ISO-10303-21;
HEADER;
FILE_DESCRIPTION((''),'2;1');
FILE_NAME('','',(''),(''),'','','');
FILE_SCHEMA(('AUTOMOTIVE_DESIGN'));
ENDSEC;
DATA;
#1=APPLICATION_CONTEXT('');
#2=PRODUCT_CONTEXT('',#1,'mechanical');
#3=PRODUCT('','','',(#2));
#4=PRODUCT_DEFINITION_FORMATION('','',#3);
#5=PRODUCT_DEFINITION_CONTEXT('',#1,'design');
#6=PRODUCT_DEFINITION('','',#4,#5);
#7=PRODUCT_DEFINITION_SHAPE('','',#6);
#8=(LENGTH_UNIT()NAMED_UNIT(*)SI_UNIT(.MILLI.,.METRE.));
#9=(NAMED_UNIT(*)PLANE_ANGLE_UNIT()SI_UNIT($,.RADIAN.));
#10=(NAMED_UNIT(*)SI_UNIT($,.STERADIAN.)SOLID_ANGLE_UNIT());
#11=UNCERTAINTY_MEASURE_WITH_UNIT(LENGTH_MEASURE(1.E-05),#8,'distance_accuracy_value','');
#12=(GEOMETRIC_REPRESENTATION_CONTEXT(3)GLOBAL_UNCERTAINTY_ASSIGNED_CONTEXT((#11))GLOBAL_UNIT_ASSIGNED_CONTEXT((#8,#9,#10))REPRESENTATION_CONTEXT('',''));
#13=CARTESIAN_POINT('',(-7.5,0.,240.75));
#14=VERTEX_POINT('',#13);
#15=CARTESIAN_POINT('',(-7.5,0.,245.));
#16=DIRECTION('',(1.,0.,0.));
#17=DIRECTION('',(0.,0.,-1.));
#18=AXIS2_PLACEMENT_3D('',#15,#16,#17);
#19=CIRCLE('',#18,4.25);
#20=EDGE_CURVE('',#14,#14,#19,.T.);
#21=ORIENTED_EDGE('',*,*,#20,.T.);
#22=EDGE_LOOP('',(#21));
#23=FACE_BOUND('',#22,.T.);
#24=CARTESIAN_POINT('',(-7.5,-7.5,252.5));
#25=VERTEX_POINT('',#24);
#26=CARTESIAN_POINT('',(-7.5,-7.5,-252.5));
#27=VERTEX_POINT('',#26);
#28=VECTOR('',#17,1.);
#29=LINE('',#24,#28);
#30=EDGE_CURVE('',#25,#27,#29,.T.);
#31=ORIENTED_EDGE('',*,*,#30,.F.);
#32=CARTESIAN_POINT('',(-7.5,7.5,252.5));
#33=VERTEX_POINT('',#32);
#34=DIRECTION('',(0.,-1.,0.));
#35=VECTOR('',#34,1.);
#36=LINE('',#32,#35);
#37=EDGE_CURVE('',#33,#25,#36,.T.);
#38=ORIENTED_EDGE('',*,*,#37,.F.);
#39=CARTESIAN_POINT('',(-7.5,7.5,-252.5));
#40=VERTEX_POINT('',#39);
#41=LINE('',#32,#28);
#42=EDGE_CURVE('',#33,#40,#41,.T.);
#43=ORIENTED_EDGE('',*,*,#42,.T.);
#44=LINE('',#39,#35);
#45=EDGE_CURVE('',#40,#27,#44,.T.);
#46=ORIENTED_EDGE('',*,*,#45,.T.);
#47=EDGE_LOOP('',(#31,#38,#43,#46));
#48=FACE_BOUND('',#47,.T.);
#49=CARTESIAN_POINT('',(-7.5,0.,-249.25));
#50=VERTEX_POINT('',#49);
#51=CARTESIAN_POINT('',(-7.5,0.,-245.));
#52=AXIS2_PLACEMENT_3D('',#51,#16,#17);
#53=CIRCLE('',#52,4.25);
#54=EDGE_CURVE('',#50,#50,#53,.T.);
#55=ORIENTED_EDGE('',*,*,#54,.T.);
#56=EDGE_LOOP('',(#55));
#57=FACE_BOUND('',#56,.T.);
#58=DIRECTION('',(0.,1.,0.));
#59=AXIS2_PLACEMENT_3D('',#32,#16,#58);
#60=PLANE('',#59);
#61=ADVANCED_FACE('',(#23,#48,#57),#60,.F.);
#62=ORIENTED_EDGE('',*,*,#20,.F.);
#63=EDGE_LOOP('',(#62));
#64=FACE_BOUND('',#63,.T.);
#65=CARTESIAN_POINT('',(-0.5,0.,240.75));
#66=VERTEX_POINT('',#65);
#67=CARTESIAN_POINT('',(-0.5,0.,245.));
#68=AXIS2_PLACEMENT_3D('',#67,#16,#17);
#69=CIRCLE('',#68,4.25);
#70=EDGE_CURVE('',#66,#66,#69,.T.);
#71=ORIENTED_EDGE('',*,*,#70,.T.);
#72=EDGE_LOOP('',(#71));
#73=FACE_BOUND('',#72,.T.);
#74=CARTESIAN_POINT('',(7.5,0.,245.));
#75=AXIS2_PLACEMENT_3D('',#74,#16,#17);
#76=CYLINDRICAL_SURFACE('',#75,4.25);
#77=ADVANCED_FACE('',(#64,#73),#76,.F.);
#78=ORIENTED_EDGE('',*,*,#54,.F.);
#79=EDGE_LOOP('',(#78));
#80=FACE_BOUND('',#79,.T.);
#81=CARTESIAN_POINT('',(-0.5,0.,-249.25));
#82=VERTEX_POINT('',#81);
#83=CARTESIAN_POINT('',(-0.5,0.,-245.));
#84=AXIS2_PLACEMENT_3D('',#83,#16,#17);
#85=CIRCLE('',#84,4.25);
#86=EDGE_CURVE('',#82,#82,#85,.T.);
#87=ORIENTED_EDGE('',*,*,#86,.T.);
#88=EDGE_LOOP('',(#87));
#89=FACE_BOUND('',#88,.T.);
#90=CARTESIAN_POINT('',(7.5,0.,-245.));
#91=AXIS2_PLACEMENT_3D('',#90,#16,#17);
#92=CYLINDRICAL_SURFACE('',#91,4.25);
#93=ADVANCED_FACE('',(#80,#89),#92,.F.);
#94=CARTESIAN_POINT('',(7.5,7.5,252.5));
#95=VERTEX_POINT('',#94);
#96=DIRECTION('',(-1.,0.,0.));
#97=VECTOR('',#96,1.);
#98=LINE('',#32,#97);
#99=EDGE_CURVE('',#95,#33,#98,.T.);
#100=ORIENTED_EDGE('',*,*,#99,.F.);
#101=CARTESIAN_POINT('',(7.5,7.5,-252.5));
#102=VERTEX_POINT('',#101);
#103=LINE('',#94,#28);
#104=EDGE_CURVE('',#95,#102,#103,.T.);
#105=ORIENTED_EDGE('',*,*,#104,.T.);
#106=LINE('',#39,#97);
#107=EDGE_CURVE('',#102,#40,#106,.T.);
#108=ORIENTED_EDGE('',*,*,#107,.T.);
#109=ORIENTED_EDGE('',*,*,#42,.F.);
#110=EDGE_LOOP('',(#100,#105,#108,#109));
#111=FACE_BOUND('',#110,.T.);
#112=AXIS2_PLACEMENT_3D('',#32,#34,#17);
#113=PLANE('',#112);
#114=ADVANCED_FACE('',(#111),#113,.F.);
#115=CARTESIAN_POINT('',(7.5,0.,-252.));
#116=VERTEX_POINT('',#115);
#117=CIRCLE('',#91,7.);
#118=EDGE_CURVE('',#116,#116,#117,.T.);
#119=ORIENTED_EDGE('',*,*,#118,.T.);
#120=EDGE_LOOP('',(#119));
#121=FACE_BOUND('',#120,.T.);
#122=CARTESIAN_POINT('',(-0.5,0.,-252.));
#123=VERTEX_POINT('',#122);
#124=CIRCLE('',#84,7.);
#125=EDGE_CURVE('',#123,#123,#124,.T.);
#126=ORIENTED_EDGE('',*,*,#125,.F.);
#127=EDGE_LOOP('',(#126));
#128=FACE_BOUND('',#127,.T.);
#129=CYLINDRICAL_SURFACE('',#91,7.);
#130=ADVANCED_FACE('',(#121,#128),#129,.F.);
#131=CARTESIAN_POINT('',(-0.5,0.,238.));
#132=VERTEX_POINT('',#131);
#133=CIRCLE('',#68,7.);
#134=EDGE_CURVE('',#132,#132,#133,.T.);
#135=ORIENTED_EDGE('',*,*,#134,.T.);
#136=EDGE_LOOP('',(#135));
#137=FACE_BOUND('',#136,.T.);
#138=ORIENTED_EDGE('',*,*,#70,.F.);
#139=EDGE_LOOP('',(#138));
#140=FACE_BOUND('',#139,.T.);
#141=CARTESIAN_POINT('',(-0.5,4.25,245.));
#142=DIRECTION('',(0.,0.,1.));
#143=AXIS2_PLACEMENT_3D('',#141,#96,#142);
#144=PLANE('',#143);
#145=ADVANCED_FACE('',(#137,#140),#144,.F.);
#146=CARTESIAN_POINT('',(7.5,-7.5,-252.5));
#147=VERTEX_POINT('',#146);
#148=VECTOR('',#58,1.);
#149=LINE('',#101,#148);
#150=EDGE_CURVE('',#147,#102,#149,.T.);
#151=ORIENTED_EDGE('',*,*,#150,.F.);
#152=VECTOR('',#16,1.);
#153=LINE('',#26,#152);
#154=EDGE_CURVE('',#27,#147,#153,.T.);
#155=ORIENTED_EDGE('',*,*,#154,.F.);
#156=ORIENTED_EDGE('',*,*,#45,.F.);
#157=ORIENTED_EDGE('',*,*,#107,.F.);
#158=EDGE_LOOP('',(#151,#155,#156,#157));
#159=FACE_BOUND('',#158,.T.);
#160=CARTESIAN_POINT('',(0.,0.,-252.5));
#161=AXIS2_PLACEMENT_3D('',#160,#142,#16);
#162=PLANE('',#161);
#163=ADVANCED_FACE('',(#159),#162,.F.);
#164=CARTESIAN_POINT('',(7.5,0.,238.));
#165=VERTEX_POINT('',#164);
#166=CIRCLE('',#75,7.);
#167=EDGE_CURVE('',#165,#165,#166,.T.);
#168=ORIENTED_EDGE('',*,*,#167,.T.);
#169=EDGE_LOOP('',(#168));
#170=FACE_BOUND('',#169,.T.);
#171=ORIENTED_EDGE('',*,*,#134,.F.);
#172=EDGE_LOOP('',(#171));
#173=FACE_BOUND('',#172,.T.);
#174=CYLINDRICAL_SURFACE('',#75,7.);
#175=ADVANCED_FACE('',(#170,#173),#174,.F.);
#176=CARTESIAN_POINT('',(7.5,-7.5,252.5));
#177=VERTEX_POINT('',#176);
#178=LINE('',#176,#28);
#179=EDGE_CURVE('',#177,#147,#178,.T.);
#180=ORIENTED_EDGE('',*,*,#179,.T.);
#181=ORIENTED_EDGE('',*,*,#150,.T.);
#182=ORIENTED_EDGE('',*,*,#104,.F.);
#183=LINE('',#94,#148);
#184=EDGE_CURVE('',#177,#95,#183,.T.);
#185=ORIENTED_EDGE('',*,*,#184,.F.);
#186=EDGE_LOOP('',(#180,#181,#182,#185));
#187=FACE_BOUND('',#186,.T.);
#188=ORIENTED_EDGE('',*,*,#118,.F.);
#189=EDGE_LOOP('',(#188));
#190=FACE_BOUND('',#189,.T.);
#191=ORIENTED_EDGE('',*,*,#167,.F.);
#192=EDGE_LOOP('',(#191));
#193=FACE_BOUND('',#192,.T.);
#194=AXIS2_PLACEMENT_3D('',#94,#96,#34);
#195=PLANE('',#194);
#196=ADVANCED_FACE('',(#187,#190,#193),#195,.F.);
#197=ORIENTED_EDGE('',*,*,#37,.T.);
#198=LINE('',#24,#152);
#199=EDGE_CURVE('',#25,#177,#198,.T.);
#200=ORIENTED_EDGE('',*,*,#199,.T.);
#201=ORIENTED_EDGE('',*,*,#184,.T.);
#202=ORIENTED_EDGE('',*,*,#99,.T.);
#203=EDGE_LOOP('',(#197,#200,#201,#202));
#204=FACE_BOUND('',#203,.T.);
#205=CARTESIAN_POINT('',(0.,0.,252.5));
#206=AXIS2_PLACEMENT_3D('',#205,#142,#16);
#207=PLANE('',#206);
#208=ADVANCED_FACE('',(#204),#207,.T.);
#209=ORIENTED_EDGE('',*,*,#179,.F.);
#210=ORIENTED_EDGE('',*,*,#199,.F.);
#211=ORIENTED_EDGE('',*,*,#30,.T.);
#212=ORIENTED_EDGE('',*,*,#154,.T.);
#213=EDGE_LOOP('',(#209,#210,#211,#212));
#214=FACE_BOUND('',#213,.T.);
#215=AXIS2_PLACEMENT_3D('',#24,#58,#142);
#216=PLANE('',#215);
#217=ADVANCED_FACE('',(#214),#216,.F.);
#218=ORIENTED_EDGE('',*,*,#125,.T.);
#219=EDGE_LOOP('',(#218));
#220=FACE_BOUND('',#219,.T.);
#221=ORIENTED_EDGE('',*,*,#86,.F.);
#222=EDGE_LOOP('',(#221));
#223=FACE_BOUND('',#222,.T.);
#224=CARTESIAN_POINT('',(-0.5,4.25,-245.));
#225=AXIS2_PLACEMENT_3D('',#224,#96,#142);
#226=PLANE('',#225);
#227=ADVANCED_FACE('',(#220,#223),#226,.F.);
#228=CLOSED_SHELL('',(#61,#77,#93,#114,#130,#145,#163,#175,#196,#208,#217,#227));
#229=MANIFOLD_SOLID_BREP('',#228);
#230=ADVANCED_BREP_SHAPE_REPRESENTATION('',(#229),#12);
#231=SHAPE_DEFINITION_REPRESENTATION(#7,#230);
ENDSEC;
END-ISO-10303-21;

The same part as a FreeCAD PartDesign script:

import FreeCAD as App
import Part
import Sketcher
from FreeCAD import Vector


def add_polygon(sketch, points):
    """Adds a closed chain of lines whose ends are joined by coincident constraints."""
    first, n = sketch.GeometryCount, len(points)
    for a, b in zip(points, points[1:] + points[:1]):
        sketch.addGeometry(Part.LineSegment(App.Vector(*a, 0), App.Vector(*b, 0)), False)
    for i in range(n):
        sketch.addConstraint(Sketcher.Constraint("Coincident", first + i, 2, first + (i + 1) % n, 1))

doc = App.newDocument("Part")
body = doc.addObject("PartDesign::Body", "Body")

sketch1 = body.newObject("Sketcher::SketchObject", "Sketch")
sketch1.AttachmentSupport = (doc.getObject("XY_Plane"), [""])
sketch1.MapMode = "FlatFace"
add_polygon(sketch1, [(-8, 8), (-8, -8), (8, -8), (8, 8)])
sketch1.addConstraint(Sketcher.Constraint("Vertical", 0))
sketch1.addConstraint(Sketcher.Constraint("Horizontal", 1))
sketch1.addConstraint(Sketcher.Constraint("Vertical", 2))
sketch1.addConstraint(Sketcher.Constraint("Horizontal", 3))
sketch1.addConstraint(Sketcher.Constraint("Symmetric", 0, 2, 2, 2, -1, 1))
sketch1.addConstraint(Sketcher.Constraint("Equal", 3, 0))
sketch1.addConstraint(Sketcher.Constraint("DistanceX", 1, 1, 1, 2, 15.0))
pad1 = body.newObject("PartDesign::Pad", "Pad")
pad1.Profile = sketch1
pad1.Length = 505
pad1.Midplane = True

sketch2 = body.newObject("Sketcher::SketchObject", "Sketch001")
sketch2.AttachmentSupport = (doc.getObject("YZ_Plane"), [""])
sketch2.MapMode = "FlatFace"
sketch2.AttachmentOffset = App.Placement(Vector(0, 0, 7.5), App.Rotation())
sketch2.addGeometry(Part.Circle(Vector(0, -245, 0), Vector(0, 0, 1), 4.2), False)
sketch2.addConstraint(Sketcher.Constraint("PointOnObject", 0, 3, -2))
sketch2.addConstraint(Sketcher.Constraint("Diameter", 0, 8.5))
sketch2.addConstraint(Sketcher.Constraint("DistanceY", 0, 3, -1, 1, 245.0))
doc.recompute()
hole = body.newObject("PartDesign::Hole", "Hole")
hole.Profile = sketch2
hole.ThreadType = "None"
hole.Diameter = 8.5
hole.DepthType = "Dimension"
hole.Depth = 15
hole.DrillPoint = "Flat"
hole.HoleCutType = "Counterbore"
hole.HoleCutDiameter = 14
hole.HoleCutDepth = 8
doc.recompute()

mirrored = body.newObject("PartDesign::Mirrored", "Mirrored")
mirrored.Originals = [hole]
mirrored.MirrorPlane = (doc.getObject("XY_Plane"), [""])
body.Tip = mirrored

doc.recompute()
